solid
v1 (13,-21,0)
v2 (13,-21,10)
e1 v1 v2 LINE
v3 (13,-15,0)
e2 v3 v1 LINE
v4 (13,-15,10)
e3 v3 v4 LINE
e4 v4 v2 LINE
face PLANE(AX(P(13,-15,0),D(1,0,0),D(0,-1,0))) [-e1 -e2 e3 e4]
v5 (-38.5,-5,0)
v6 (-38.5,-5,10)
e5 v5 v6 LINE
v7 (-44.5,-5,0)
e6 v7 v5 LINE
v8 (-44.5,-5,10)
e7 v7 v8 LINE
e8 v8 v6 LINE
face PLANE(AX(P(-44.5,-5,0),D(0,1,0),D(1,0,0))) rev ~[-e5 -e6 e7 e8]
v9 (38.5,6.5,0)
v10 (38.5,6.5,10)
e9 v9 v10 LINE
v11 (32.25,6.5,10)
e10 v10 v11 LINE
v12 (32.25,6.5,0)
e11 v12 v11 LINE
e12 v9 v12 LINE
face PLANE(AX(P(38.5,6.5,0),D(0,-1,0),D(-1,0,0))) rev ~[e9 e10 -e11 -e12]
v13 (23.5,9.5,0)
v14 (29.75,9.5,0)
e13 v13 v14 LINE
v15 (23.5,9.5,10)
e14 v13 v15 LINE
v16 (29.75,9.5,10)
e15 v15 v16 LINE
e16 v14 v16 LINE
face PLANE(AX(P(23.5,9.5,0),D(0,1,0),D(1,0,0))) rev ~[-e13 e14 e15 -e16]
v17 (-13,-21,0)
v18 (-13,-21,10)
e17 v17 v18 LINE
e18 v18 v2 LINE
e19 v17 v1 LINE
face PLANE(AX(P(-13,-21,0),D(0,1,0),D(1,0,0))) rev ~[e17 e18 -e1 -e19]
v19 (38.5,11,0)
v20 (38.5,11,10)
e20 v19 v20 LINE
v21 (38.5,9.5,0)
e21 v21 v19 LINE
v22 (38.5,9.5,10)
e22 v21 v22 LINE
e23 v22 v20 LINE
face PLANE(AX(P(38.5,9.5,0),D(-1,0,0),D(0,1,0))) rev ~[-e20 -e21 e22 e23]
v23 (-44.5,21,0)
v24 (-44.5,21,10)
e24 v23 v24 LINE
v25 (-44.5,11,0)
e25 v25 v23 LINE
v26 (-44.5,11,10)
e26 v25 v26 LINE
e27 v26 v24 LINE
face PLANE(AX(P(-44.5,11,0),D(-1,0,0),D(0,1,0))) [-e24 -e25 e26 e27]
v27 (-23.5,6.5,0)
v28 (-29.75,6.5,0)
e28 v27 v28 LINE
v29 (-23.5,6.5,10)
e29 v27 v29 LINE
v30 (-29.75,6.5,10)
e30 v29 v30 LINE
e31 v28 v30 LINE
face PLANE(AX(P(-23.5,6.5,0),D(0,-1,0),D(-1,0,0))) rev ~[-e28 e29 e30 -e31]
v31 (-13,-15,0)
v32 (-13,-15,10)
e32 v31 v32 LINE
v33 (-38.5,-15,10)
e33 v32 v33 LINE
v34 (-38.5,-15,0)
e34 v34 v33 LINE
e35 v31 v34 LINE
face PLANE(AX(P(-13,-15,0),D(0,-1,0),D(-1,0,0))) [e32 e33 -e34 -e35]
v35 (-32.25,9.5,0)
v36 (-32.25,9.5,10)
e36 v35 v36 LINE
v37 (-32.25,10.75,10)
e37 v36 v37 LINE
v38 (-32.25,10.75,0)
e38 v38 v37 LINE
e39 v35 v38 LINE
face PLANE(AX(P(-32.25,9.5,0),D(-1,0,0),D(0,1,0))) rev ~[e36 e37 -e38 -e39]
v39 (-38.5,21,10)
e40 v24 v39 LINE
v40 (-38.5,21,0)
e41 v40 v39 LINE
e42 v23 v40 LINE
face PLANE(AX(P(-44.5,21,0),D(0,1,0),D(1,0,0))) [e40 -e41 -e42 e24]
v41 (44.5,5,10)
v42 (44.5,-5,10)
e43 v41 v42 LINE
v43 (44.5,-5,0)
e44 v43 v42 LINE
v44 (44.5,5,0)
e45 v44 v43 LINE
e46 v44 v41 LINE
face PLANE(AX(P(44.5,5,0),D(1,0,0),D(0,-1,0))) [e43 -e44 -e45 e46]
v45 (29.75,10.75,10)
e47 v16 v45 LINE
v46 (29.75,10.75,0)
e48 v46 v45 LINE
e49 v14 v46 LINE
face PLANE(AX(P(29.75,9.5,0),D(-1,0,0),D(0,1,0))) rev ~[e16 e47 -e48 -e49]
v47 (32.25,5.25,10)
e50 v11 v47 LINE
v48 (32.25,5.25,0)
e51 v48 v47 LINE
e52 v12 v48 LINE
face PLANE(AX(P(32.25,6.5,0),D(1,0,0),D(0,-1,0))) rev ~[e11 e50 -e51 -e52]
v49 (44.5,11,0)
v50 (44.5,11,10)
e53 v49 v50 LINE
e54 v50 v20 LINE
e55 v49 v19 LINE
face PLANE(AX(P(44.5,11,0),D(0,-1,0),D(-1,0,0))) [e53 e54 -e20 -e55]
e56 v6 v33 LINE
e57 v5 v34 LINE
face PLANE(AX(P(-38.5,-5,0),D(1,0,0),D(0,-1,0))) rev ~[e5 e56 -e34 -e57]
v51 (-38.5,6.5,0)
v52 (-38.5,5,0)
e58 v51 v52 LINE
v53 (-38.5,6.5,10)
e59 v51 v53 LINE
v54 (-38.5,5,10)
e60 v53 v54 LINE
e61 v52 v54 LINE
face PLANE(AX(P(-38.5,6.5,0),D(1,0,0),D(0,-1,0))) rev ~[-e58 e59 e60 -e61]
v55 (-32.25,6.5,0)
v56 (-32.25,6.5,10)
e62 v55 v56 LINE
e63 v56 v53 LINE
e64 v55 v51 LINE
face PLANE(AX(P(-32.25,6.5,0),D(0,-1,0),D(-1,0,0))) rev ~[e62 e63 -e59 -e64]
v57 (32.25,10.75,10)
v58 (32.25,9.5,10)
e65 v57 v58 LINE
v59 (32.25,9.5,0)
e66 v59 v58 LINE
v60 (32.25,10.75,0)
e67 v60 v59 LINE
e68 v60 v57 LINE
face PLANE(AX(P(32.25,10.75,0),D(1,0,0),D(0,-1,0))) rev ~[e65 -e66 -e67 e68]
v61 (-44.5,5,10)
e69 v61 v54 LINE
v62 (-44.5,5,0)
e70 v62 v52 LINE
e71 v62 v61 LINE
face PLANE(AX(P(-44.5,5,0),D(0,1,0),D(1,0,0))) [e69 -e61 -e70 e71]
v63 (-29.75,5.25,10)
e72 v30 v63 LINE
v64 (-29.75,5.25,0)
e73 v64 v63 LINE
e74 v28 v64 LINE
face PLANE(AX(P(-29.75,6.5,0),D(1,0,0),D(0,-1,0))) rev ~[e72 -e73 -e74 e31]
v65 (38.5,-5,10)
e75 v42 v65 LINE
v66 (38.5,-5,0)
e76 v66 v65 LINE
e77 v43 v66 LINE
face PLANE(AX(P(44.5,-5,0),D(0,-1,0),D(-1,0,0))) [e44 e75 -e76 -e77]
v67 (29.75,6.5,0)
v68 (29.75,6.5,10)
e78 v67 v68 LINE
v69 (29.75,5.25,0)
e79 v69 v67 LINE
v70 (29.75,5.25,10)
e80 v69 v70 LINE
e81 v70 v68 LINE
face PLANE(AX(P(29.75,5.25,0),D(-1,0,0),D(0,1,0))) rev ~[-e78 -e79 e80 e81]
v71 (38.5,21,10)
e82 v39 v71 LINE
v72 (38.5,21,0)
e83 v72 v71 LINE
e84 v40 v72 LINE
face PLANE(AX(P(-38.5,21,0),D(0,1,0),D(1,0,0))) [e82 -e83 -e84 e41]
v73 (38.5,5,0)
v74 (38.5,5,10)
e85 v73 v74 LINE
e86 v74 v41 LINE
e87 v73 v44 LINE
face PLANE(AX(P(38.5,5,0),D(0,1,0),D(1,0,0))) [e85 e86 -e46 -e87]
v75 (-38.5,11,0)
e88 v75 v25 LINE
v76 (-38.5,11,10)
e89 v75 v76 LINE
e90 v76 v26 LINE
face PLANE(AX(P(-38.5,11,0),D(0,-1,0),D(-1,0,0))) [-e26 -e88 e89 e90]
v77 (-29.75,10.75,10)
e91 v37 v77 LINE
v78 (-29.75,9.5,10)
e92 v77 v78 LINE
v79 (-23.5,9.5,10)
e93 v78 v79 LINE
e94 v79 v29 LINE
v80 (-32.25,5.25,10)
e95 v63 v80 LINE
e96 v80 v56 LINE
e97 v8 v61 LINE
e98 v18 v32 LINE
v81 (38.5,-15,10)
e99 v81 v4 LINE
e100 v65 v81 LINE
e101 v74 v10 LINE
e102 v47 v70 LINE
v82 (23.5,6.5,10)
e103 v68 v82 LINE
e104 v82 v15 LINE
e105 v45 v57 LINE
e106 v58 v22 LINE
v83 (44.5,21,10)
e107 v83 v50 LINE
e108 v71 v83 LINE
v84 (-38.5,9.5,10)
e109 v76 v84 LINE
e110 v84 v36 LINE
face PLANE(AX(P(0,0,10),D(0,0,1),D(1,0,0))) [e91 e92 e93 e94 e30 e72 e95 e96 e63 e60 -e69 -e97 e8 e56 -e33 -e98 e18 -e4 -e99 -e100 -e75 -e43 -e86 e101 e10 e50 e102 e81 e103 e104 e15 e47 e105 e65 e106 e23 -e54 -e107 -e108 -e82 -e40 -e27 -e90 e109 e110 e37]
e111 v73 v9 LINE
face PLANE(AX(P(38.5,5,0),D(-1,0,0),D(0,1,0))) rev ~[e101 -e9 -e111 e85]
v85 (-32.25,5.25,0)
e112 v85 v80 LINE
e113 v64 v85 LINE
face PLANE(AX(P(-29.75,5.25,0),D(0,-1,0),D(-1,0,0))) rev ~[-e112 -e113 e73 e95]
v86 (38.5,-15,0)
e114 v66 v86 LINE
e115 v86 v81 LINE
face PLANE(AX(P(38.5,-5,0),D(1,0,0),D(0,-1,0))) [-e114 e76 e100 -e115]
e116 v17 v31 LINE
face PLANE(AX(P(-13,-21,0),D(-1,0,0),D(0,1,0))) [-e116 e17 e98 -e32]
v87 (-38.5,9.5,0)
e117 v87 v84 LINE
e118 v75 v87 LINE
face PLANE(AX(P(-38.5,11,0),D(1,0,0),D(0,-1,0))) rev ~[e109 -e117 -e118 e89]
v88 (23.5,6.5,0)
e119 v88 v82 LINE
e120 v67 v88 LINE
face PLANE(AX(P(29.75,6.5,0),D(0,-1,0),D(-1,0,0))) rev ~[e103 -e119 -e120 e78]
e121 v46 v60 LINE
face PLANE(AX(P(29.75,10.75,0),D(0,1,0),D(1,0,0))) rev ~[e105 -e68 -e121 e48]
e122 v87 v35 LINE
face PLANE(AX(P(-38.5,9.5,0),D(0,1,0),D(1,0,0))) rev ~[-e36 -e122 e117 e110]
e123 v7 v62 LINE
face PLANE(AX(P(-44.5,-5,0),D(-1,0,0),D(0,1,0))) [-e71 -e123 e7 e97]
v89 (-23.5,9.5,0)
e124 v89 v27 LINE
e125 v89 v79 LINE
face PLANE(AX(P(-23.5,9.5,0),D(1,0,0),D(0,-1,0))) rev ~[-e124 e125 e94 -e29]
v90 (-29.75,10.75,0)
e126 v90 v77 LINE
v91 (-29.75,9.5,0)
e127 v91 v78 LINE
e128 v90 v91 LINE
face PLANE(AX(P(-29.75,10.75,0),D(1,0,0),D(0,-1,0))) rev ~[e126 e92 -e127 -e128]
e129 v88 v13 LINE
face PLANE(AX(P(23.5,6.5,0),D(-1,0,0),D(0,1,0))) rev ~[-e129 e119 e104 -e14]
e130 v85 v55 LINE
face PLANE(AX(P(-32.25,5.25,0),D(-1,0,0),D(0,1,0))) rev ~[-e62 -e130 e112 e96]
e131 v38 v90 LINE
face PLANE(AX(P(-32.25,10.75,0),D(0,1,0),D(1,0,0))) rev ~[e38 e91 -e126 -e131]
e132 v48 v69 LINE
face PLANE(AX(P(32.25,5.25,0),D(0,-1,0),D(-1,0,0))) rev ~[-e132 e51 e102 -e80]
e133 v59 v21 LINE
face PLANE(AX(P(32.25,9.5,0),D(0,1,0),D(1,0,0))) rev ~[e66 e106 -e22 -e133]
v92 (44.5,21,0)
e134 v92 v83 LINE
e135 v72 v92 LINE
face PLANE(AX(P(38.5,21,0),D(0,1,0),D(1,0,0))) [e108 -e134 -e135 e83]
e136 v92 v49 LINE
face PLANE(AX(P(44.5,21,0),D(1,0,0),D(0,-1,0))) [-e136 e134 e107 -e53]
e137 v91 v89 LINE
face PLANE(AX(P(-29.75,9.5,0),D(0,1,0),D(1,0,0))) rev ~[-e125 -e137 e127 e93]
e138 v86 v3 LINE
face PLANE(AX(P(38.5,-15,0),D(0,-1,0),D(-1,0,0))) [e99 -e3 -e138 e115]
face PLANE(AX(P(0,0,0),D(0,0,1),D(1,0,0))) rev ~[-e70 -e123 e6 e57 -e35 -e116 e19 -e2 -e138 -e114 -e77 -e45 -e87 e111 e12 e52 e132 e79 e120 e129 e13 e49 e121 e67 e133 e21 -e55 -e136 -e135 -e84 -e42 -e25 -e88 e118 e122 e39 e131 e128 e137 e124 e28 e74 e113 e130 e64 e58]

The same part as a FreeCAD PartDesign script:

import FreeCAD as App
import Part
import Sketcher

V = App.Vector

doc = App.newDocument("Part")
body = doc.addObject("PartDesign::Body", "Body")

# Sketch on XY plane
sketch1 = body.newObject("Sketcher::SketchObject", "Sketch")
sketch1.AttachmentSupport = (doc.getObject("XY_Plane"), [""])
sketch1.MapMode = "FlatFace"
sketch1.addGeometry([
    Part.LineSegment(V(-44.5, 5, 0), V(-44.5, -5, 0)),  # 0
    Part.LineSegment(V(-44.5, -5, 0), V(-38.5, -5, 0)),  # 1
    Part.LineSegment(V(-38.5, -5, 0), V(-38.5, -15, 0)),  # 2
    Part.LineSegment(V(-38.5, -15, 0), V(-13, -15, 0)),  # 3
    Part.LineSegment(V(-13, -15, 0), V(-13, -21, 0)),  # 4
    Part.LineSegment(V(-13, -21, 0), V(13, -21, 0)),  # 5
    Part.LineSegment(V(13, -21, 0), V(13, -15, 0)),  # 6
    Part.LineSegment(V(13, -15, 0), V(38.5, -15, 0)),  # 7
    Part.LineSegment(V(38.5, -15, 0), V(38.5, -5, 0)),  # 8
    Part.LineSegment(V(38.5, -5, 0), V(44.5, -5, 0)),  # 9
    Part.LineSegment(V(44.5, -5, 0), V(44.5, 5, 0)),  # 10
    Part.LineSegment(V(44.5, 5, 0), V(38.5, 5, 0)),  # 11
    Part.LineSegment(V(38.5, 5, 0), V(38.5, 6.5, 0)),  # 12
    Part.LineSegment(V(38.5, 6.5, 0), V(32.2, 6.5, 0)),  # 13
    Part.LineSegment(V(32.2, 6.5, 0), V(32.2, 5.2, 0)),  # 14
    Part.LineSegment(V(32.2, 5.2, 0), V(29.8, 5.2, 0)),  # 15
    Part.LineSegment(V(29.8, 5.2, 0), V(29.8, 6.5, 0)),  # 16
    Part.LineSegment(V(29.8, 6.5, 0), V(23.5, 6.5, 0)),  # 17
    Part.LineSegment(V(23.5, 6.5, 0), V(23.5, 9.5, 0)),  # 18
    Part.LineSegment(V(23.5, 9.5, 0), V(29.8, 9.5, 0)),  # 19
    Part.LineSegment(V(29.8, 9.5, 0), V(29.8, 10.8, 0)),  # 20
    Part.LineSegment(V(29.8, 10.8, 0), V(32.2, 10.8, 0)),  # 21
    Part.LineSegment(V(32.2, 10.8, 0), V(32.2, 9.5, 0)),  # 22
    Part.LineSegment(V(32.2, 9.5, 0), V(38.5, 9.5, 0)),  # 23
    Part.LineSegment(V(38.5, 9.5, 0), V(38.5, 11, 0)),  # 24
    Part.LineSegment(V(38.5, 11, 0), V(44.5, 11, 0)),  # 25
    Part.LineSegment(V(44.5, 11, 0), V(44.5, 21, 0)),  # 26
    Part.LineSegment(V(44.5, 21, 0), V(-44.5, 21, 0)),  # 27
    Part.LineSegment(V(-44.5, 21, 0), V(-44.5, 11, 0)),  # 28
    Part.LineSegment(V(-44.5, 11, 0), V(-38.5, 11, 0)),  # 29
    Part.LineSegment(V(-38.5, 11, 0), V(-38.5, 9.5, 0)),  # 30
    Part.LineSegment(V(-38.5, 9.5, 0), V(-32.2, 9.5, 0)),  # 31
    Part.LineSegment(V(-32.2, 9.5, 0), V(-32.2, 10.8, 0)),  # 32
    Part.LineSegment(V(-32.2, 10.8, 0), V(-29.8, 10.8, 0)),  # 33
    Part.LineSegment(V(-29.8, 10.8, 0), V(-29.8, 9.5, 0)),  # 34
    Part.LineSegment(V(-29.8, 9.5, 0), V(-23.5, 9.5, 0)),  # 35
    Part.LineSegment(V(-23.5, 9.5, 0), V(-23.5, 6.5, 0)),  # 36
    Part.LineSegment(V(-23.5, 6.5, 0), V(-29.8, 6.5, 0)),  # 37
    Part.LineSegment(V(-29.8, 6.5, 0), V(-29.8, 5.2, 0)),  # 38
    Part.LineSegment(V(-29.8, 5.2, 0), V(-32.2, 5.2, 0)),  # 39
    Part.LineSegment(V(-32.2, 5.2, 0), V(-32.2, 6.5, 0)),  # 40
    Part.LineSegment(V(-32.2, 6.5, 0), V(-38.5, 6.5, 0)),  # 41
    Part.LineSegment(V(-38.5, 6.5, 0), V(-38.5, 5, 0)),  # 42
    Part.LineSegment(V(-38.5, 5, 0), V(-44.5, 5, 0)),  # 43
], False)
sketch1.addConstraint([
    Sketcher.Constraint("Coincident", 0, 2, 1, 1),
    Sketcher.Constraint("Coincident", 1, 2, 2, 1),
    Sketcher.Constraint("Coincident", 2, 2, 3, 1),
    Sketcher.Constraint("Coincident", 3, 2, 4, 1),
    Sketcher.Constraint("Coincident", 4, 2, 5, 1),
    Sketcher.Constraint("Coincident", 5, 2, 6, 1),
    Sketcher.Constraint("Coincident", 6, 2, 7, 1),
    Sketcher.Constraint("Coincident", 7, 2, 8, 1),
    Sketcher.Constraint("Coincident", 8, 2, 9, 1),
    Sketcher.Constraint("Coincident", 9, 2, 10, 1),
    Sketcher.Constraint("Coincident", 10, 2, 11, 1),
    Sketcher.Constraint("Coincident", 11, 2, 12, 1),
    Sketcher.Constraint("Coincident", 12, 2, 13, 1),
    Sketcher.Constraint("Coincident", 13, 2, 14, 1),
    Sketcher.Constraint("Coincident", 14, 2, 15, 1),
    Sketcher.Constraint("Coincident", 15, 2, 16, 1),
    Sketcher.Constraint("Coincident", 16, 2, 17, 1),
    Sketcher.Constraint("Coincident", 17, 2, 18, 1),
    Sketcher.Constraint("Coincident", 18, 2, 19, 1),
    Sketcher.Constraint("Coincident", 19, 2, 20, 1),
    Sketcher.Constraint("Coincident", 20, 2, 21, 1),
    Sketcher.Constraint("Coincident", 21, 2, 22, 1),
    Sketcher.Constraint("Coincident", 22, 2, 23, 1),
    Sketcher.Constraint("Coincident", 23, 2, 24, 1),
    Sketcher.Constraint("Coincident", 24, 2, 25, 1),
    Sketcher.Constraint("Coincident", 25, 2, 26, 1),
    Sketcher.Constraint("Coincident", 26, 2, 27, 1),
    Sketcher.Constraint("Coincident", 27, 2, 28, 1),
    Sketcher.Constraint("Coincident", 28, 2, 29, 1),
    Sketcher.Constraint("Coincident", 29, 2, 30, 1),
    Sketcher.Constraint("Coincident", 30, 2, 31, 1),
    Sketcher.Constraint("Coincident", 31, 2, 32, 1),
    Sketcher.Constraint("Coincident", 32, 2, 33, 1),
    Sketcher.Constraint("Coincident", 33, 2, 34, 1),
    Sketcher.Constraint("Coincident", 34, 2, 35, 1),
    Sketcher.Constraint("Coincident", 35, 2, 36, 1),
    Sketcher.Constraint("Coincident", 36, 2, 37, 1),
    Sketcher.Constraint("Coincident", 37, 2, 38, 1),
    Sketcher.Constraint("Coincident", 38, 2, 39, 1),
    Sketcher.Constraint("Coincident", 39, 2, 40, 1),
    Sketcher.Constraint("Coincident", 40, 2, 41, 1),
    Sketcher.Constraint("Coincident", 41, 2, 42, 1),
    Sketcher.Constraint("Coincident", 42, 2, 43, 1),
    Sketcher.Constraint("Coincident", 43, 2, 0, 1),
    Sketcher.Constraint("Vertical", 0),
    Sketcher.Constraint("Horizontal", 1),
    Sketcher.Constraint("Vertical", 2),
    Sketcher.Constraint("Horizontal", 3),
    Sketcher.Constraint("Vertical", 4),
    Sketcher.Constraint("Horizontal", 5),
    Sketcher.Constraint("Vertical", 6),
    Sketcher.Constraint("Horizontal", 7),
    Sketcher.Constraint("Vertical", 8),
    Sketcher.Constraint("Horizontal", 9),
    Sketcher.Constraint("Vertical", 10),
    Sketcher.Constraint("Horizontal", 11),
    Sketcher.Constraint("Vertical", 12),
    Sketcher.Constraint("Horizontal", 13),
    Sketcher.Constraint("Vertical", 14),
    Sketcher.Constraint("Horizontal", 15),
    Sketcher.Constraint("Vertical", 16),
    Sketcher.Constraint("Horizontal", 17),
    Sketcher.Constraint("Vertical", 18),
    Sketcher.Constraint("Horizontal", 19),
    Sketcher.Constraint("Vertical", 20),
    Sketcher.Constraint("Horizontal", 21),
    Sketcher.Constraint("Vertical", 22),
    Sketcher.Constraint("Horizontal", 23),
    Sketcher.Constraint("Vertical", 24),
    Sketcher.Constraint("Horizontal", 25),
    Sketcher.Constraint("Vertical", 26),
    Sketcher.Constraint("Horizontal", 27),
    Sketcher.Constraint("Vertical", 28),
    Sketcher.Constraint("Horizontal", 29),
    Sketcher.Constraint("Vertical", 30),
    Sketcher.Constraint("Horizontal", 31),
    Sketcher.Constraint("Vertical", 32),
    Sketcher.Constraint("Horizontal", 33),
    Sketcher.Constraint("Vertical", 34),
    Sketcher.Constraint("Horizontal", 35),
    Sketcher.Constraint("Vertical", 36),
    Sketcher.Constraint("Horizontal", 37),
    Sketcher.Constraint("Vertical", 38),
    Sketcher.Constraint("Horizontal", 39),
    Sketcher.Constraint("Vertical", 40),
    Sketcher.Constraint("Horizontal", 41),
    Sketcher.Constraint("Vertical", 42),
    Sketcher.Constraint("Horizontal", 43),
    Sketcher.Constraint("Symmetric", 0, 2, 10, 2, -1, 1),
    Sketcher.Constraint("Symmetric", 8, 2, 42, 2, -1, 1),
    Sketcher.Constraint("Symmetric", 3, 2, 6, 2, -2),
    Sketcher.Constraint("Symmetric", 1, 2, 8, 2, -2),
    Sketcher.Constraint("Symmetric", 25, 2, 28, 2, -2),
    Sketcher.Constraint("Symmetric", 23, 2, 30, 2, -2),
    Sketcher.Constraint("Symmetric", 21, 2, 32, 2, -2),
    Sketcher.Constraint("Symmetric", 19, 2, 34, 2, -2),
    Sketcher.Constraint("Symmetric", 17, 2, 36, 2, -2),
    Sketcher.Constraint("Symmetric", 15, 2, 38, 2, -2),
    Sketcher.Constraint("Symmetric", 13, 2, 40, 2, -2),
    Sketcher.Constraint("Horizontal", 13, 2, 16, 2),
    Sketcher.Constraint("Horizontal", 19, 2, 22, 2),
    Sketcher.Constraint("Vertical", 8, 2, 11, 2),
    Sketcher.Constraint("Vertical", 16, 2, 19, 2),
    Sketcher.Constraint("Vertical", 14, 2, 21, 2),
    Sketcher.Constraint("Vertical", 12, 2, 23, 2),
    Sketcher.Constraint("Vertical", 10, 2, 25, 2),
    Sketcher.Constraint("Equal", 13, 17),
    Sketcher.Constraint("Equal", 0, 2),
    Sketcher.Constraint("Equal", 43, 4),
    Sketcher.Constraint("Equal", 16, 20),
    Sketcher.Constraint("Equal", 12, 24),
    Sketcher.Constraint("Equal", 10, 26),
    Sketcher.Constraint("DistanceX", 1, 1, 1, 2, 6.0),
    Sketcher.Constraint("DistanceX", 5, 1, 5, 2, 26.0),
    Sketcher.Constraint("DistanceX", 27, 2, 27, 1, 89.0),
    Sketcher.Constraint("DistanceY", 0, 2, 0, 1, 10.0),
    Sketcher.Constraint("DistanceY", 18, 1, 18, 2, 3.0),
    Sketcher.Constraint("DistanceX", 15, 2, 15, 1, 2.5),
    Sketcher.Constraint("DistanceY", 12, 1, 12, 2, 1.5),
    Sketcher.Constraint("DistanceX", 17, 2, 12, 2, 15.0),
    Sketcher.Constraint("DistanceY", 14, 2, 14, 1, 1.25),
])
pad1 = body.newObject("PartDesign::Pad", "Pad")
pad1.Profile = sketch1
pad1.Length = 10

doc.recompute()
